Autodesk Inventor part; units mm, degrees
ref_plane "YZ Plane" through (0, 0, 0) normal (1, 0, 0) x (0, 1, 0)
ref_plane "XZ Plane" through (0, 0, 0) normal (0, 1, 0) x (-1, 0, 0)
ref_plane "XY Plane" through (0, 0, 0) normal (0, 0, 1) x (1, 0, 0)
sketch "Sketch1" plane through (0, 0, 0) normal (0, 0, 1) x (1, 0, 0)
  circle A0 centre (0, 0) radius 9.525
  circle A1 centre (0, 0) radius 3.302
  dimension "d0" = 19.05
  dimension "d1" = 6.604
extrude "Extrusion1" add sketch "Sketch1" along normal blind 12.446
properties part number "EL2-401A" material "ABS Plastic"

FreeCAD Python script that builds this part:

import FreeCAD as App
import Part
import Sketcher

V = App.Vector
Q = App.Units.Quantity

doc = App.newDocument("Part")
body = doc.addObject("PartDesign::Body", "Body")

# Sketch on XY plane
sketch1 = body.newObject("Sketcher::SketchObject", "Sketch")
sketch1.AttachmentSupport = (doc.getObject("XY_Plane"), [""])
sketch1.MapMode = "FlatFace"
sketch1.addGeometry([
    Part.Circle(V(0, 0, 0), V(0, 0, 1), 9.5),
    Part.Circle(V(0, 0, 0), V(0, 0, 1), 3.3),
], False)
sketch1.addConstraint([
    Sketcher.Constraint("Coincident", 0, 3, -1, 1),
    Sketcher.Constraint("Coincident", 1, 3, -1, 1),
    Sketcher.Constraint("Diameter", 0, Q("0.75 in")),
    Sketcher.Constraint("Diameter", 1, Q("0.26 in")),
])
pad1 = body.newObject("PartDesign::Pad", "Pad")
pad1.Profile = sketch1
pad1.Length = Q("0.49 in")

doc.recompute()
